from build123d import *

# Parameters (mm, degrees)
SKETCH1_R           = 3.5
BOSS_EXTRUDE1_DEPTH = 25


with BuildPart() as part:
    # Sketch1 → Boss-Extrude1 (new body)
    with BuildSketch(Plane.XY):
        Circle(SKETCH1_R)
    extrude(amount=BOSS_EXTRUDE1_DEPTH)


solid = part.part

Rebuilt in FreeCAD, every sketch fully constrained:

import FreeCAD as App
import Part
import Sketcher

V = App.Vector

doc = App.newDocument("Part")
body = doc.addObject("PartDesign::Body", "Body")

sketch1 = doc.addObject("Sketcher::SketchObject", "Sketch")
body.addObject(sketch1)
sketch1.AttachmentSupport = (doc.XY_Plane, [""])
sketch1.MapMode = "FlatFace"
sketch1.addGeometry(Part.Circle(V(0, 0, 0), V(0, 0, 1), 3.5), False)
sketch1.addConstraint([
    Sketcher.Constraint("Coincident", 0, 3, -1, 1),
    Sketcher.Constraint("Diameter", 0, 7.0),
])
pad1 = doc.addObject("PartDesign::Pad", "Pad")
body.addObject(pad1)
pad1.Profile = sketch1
pad1.Length = 25

doc.recompute()
